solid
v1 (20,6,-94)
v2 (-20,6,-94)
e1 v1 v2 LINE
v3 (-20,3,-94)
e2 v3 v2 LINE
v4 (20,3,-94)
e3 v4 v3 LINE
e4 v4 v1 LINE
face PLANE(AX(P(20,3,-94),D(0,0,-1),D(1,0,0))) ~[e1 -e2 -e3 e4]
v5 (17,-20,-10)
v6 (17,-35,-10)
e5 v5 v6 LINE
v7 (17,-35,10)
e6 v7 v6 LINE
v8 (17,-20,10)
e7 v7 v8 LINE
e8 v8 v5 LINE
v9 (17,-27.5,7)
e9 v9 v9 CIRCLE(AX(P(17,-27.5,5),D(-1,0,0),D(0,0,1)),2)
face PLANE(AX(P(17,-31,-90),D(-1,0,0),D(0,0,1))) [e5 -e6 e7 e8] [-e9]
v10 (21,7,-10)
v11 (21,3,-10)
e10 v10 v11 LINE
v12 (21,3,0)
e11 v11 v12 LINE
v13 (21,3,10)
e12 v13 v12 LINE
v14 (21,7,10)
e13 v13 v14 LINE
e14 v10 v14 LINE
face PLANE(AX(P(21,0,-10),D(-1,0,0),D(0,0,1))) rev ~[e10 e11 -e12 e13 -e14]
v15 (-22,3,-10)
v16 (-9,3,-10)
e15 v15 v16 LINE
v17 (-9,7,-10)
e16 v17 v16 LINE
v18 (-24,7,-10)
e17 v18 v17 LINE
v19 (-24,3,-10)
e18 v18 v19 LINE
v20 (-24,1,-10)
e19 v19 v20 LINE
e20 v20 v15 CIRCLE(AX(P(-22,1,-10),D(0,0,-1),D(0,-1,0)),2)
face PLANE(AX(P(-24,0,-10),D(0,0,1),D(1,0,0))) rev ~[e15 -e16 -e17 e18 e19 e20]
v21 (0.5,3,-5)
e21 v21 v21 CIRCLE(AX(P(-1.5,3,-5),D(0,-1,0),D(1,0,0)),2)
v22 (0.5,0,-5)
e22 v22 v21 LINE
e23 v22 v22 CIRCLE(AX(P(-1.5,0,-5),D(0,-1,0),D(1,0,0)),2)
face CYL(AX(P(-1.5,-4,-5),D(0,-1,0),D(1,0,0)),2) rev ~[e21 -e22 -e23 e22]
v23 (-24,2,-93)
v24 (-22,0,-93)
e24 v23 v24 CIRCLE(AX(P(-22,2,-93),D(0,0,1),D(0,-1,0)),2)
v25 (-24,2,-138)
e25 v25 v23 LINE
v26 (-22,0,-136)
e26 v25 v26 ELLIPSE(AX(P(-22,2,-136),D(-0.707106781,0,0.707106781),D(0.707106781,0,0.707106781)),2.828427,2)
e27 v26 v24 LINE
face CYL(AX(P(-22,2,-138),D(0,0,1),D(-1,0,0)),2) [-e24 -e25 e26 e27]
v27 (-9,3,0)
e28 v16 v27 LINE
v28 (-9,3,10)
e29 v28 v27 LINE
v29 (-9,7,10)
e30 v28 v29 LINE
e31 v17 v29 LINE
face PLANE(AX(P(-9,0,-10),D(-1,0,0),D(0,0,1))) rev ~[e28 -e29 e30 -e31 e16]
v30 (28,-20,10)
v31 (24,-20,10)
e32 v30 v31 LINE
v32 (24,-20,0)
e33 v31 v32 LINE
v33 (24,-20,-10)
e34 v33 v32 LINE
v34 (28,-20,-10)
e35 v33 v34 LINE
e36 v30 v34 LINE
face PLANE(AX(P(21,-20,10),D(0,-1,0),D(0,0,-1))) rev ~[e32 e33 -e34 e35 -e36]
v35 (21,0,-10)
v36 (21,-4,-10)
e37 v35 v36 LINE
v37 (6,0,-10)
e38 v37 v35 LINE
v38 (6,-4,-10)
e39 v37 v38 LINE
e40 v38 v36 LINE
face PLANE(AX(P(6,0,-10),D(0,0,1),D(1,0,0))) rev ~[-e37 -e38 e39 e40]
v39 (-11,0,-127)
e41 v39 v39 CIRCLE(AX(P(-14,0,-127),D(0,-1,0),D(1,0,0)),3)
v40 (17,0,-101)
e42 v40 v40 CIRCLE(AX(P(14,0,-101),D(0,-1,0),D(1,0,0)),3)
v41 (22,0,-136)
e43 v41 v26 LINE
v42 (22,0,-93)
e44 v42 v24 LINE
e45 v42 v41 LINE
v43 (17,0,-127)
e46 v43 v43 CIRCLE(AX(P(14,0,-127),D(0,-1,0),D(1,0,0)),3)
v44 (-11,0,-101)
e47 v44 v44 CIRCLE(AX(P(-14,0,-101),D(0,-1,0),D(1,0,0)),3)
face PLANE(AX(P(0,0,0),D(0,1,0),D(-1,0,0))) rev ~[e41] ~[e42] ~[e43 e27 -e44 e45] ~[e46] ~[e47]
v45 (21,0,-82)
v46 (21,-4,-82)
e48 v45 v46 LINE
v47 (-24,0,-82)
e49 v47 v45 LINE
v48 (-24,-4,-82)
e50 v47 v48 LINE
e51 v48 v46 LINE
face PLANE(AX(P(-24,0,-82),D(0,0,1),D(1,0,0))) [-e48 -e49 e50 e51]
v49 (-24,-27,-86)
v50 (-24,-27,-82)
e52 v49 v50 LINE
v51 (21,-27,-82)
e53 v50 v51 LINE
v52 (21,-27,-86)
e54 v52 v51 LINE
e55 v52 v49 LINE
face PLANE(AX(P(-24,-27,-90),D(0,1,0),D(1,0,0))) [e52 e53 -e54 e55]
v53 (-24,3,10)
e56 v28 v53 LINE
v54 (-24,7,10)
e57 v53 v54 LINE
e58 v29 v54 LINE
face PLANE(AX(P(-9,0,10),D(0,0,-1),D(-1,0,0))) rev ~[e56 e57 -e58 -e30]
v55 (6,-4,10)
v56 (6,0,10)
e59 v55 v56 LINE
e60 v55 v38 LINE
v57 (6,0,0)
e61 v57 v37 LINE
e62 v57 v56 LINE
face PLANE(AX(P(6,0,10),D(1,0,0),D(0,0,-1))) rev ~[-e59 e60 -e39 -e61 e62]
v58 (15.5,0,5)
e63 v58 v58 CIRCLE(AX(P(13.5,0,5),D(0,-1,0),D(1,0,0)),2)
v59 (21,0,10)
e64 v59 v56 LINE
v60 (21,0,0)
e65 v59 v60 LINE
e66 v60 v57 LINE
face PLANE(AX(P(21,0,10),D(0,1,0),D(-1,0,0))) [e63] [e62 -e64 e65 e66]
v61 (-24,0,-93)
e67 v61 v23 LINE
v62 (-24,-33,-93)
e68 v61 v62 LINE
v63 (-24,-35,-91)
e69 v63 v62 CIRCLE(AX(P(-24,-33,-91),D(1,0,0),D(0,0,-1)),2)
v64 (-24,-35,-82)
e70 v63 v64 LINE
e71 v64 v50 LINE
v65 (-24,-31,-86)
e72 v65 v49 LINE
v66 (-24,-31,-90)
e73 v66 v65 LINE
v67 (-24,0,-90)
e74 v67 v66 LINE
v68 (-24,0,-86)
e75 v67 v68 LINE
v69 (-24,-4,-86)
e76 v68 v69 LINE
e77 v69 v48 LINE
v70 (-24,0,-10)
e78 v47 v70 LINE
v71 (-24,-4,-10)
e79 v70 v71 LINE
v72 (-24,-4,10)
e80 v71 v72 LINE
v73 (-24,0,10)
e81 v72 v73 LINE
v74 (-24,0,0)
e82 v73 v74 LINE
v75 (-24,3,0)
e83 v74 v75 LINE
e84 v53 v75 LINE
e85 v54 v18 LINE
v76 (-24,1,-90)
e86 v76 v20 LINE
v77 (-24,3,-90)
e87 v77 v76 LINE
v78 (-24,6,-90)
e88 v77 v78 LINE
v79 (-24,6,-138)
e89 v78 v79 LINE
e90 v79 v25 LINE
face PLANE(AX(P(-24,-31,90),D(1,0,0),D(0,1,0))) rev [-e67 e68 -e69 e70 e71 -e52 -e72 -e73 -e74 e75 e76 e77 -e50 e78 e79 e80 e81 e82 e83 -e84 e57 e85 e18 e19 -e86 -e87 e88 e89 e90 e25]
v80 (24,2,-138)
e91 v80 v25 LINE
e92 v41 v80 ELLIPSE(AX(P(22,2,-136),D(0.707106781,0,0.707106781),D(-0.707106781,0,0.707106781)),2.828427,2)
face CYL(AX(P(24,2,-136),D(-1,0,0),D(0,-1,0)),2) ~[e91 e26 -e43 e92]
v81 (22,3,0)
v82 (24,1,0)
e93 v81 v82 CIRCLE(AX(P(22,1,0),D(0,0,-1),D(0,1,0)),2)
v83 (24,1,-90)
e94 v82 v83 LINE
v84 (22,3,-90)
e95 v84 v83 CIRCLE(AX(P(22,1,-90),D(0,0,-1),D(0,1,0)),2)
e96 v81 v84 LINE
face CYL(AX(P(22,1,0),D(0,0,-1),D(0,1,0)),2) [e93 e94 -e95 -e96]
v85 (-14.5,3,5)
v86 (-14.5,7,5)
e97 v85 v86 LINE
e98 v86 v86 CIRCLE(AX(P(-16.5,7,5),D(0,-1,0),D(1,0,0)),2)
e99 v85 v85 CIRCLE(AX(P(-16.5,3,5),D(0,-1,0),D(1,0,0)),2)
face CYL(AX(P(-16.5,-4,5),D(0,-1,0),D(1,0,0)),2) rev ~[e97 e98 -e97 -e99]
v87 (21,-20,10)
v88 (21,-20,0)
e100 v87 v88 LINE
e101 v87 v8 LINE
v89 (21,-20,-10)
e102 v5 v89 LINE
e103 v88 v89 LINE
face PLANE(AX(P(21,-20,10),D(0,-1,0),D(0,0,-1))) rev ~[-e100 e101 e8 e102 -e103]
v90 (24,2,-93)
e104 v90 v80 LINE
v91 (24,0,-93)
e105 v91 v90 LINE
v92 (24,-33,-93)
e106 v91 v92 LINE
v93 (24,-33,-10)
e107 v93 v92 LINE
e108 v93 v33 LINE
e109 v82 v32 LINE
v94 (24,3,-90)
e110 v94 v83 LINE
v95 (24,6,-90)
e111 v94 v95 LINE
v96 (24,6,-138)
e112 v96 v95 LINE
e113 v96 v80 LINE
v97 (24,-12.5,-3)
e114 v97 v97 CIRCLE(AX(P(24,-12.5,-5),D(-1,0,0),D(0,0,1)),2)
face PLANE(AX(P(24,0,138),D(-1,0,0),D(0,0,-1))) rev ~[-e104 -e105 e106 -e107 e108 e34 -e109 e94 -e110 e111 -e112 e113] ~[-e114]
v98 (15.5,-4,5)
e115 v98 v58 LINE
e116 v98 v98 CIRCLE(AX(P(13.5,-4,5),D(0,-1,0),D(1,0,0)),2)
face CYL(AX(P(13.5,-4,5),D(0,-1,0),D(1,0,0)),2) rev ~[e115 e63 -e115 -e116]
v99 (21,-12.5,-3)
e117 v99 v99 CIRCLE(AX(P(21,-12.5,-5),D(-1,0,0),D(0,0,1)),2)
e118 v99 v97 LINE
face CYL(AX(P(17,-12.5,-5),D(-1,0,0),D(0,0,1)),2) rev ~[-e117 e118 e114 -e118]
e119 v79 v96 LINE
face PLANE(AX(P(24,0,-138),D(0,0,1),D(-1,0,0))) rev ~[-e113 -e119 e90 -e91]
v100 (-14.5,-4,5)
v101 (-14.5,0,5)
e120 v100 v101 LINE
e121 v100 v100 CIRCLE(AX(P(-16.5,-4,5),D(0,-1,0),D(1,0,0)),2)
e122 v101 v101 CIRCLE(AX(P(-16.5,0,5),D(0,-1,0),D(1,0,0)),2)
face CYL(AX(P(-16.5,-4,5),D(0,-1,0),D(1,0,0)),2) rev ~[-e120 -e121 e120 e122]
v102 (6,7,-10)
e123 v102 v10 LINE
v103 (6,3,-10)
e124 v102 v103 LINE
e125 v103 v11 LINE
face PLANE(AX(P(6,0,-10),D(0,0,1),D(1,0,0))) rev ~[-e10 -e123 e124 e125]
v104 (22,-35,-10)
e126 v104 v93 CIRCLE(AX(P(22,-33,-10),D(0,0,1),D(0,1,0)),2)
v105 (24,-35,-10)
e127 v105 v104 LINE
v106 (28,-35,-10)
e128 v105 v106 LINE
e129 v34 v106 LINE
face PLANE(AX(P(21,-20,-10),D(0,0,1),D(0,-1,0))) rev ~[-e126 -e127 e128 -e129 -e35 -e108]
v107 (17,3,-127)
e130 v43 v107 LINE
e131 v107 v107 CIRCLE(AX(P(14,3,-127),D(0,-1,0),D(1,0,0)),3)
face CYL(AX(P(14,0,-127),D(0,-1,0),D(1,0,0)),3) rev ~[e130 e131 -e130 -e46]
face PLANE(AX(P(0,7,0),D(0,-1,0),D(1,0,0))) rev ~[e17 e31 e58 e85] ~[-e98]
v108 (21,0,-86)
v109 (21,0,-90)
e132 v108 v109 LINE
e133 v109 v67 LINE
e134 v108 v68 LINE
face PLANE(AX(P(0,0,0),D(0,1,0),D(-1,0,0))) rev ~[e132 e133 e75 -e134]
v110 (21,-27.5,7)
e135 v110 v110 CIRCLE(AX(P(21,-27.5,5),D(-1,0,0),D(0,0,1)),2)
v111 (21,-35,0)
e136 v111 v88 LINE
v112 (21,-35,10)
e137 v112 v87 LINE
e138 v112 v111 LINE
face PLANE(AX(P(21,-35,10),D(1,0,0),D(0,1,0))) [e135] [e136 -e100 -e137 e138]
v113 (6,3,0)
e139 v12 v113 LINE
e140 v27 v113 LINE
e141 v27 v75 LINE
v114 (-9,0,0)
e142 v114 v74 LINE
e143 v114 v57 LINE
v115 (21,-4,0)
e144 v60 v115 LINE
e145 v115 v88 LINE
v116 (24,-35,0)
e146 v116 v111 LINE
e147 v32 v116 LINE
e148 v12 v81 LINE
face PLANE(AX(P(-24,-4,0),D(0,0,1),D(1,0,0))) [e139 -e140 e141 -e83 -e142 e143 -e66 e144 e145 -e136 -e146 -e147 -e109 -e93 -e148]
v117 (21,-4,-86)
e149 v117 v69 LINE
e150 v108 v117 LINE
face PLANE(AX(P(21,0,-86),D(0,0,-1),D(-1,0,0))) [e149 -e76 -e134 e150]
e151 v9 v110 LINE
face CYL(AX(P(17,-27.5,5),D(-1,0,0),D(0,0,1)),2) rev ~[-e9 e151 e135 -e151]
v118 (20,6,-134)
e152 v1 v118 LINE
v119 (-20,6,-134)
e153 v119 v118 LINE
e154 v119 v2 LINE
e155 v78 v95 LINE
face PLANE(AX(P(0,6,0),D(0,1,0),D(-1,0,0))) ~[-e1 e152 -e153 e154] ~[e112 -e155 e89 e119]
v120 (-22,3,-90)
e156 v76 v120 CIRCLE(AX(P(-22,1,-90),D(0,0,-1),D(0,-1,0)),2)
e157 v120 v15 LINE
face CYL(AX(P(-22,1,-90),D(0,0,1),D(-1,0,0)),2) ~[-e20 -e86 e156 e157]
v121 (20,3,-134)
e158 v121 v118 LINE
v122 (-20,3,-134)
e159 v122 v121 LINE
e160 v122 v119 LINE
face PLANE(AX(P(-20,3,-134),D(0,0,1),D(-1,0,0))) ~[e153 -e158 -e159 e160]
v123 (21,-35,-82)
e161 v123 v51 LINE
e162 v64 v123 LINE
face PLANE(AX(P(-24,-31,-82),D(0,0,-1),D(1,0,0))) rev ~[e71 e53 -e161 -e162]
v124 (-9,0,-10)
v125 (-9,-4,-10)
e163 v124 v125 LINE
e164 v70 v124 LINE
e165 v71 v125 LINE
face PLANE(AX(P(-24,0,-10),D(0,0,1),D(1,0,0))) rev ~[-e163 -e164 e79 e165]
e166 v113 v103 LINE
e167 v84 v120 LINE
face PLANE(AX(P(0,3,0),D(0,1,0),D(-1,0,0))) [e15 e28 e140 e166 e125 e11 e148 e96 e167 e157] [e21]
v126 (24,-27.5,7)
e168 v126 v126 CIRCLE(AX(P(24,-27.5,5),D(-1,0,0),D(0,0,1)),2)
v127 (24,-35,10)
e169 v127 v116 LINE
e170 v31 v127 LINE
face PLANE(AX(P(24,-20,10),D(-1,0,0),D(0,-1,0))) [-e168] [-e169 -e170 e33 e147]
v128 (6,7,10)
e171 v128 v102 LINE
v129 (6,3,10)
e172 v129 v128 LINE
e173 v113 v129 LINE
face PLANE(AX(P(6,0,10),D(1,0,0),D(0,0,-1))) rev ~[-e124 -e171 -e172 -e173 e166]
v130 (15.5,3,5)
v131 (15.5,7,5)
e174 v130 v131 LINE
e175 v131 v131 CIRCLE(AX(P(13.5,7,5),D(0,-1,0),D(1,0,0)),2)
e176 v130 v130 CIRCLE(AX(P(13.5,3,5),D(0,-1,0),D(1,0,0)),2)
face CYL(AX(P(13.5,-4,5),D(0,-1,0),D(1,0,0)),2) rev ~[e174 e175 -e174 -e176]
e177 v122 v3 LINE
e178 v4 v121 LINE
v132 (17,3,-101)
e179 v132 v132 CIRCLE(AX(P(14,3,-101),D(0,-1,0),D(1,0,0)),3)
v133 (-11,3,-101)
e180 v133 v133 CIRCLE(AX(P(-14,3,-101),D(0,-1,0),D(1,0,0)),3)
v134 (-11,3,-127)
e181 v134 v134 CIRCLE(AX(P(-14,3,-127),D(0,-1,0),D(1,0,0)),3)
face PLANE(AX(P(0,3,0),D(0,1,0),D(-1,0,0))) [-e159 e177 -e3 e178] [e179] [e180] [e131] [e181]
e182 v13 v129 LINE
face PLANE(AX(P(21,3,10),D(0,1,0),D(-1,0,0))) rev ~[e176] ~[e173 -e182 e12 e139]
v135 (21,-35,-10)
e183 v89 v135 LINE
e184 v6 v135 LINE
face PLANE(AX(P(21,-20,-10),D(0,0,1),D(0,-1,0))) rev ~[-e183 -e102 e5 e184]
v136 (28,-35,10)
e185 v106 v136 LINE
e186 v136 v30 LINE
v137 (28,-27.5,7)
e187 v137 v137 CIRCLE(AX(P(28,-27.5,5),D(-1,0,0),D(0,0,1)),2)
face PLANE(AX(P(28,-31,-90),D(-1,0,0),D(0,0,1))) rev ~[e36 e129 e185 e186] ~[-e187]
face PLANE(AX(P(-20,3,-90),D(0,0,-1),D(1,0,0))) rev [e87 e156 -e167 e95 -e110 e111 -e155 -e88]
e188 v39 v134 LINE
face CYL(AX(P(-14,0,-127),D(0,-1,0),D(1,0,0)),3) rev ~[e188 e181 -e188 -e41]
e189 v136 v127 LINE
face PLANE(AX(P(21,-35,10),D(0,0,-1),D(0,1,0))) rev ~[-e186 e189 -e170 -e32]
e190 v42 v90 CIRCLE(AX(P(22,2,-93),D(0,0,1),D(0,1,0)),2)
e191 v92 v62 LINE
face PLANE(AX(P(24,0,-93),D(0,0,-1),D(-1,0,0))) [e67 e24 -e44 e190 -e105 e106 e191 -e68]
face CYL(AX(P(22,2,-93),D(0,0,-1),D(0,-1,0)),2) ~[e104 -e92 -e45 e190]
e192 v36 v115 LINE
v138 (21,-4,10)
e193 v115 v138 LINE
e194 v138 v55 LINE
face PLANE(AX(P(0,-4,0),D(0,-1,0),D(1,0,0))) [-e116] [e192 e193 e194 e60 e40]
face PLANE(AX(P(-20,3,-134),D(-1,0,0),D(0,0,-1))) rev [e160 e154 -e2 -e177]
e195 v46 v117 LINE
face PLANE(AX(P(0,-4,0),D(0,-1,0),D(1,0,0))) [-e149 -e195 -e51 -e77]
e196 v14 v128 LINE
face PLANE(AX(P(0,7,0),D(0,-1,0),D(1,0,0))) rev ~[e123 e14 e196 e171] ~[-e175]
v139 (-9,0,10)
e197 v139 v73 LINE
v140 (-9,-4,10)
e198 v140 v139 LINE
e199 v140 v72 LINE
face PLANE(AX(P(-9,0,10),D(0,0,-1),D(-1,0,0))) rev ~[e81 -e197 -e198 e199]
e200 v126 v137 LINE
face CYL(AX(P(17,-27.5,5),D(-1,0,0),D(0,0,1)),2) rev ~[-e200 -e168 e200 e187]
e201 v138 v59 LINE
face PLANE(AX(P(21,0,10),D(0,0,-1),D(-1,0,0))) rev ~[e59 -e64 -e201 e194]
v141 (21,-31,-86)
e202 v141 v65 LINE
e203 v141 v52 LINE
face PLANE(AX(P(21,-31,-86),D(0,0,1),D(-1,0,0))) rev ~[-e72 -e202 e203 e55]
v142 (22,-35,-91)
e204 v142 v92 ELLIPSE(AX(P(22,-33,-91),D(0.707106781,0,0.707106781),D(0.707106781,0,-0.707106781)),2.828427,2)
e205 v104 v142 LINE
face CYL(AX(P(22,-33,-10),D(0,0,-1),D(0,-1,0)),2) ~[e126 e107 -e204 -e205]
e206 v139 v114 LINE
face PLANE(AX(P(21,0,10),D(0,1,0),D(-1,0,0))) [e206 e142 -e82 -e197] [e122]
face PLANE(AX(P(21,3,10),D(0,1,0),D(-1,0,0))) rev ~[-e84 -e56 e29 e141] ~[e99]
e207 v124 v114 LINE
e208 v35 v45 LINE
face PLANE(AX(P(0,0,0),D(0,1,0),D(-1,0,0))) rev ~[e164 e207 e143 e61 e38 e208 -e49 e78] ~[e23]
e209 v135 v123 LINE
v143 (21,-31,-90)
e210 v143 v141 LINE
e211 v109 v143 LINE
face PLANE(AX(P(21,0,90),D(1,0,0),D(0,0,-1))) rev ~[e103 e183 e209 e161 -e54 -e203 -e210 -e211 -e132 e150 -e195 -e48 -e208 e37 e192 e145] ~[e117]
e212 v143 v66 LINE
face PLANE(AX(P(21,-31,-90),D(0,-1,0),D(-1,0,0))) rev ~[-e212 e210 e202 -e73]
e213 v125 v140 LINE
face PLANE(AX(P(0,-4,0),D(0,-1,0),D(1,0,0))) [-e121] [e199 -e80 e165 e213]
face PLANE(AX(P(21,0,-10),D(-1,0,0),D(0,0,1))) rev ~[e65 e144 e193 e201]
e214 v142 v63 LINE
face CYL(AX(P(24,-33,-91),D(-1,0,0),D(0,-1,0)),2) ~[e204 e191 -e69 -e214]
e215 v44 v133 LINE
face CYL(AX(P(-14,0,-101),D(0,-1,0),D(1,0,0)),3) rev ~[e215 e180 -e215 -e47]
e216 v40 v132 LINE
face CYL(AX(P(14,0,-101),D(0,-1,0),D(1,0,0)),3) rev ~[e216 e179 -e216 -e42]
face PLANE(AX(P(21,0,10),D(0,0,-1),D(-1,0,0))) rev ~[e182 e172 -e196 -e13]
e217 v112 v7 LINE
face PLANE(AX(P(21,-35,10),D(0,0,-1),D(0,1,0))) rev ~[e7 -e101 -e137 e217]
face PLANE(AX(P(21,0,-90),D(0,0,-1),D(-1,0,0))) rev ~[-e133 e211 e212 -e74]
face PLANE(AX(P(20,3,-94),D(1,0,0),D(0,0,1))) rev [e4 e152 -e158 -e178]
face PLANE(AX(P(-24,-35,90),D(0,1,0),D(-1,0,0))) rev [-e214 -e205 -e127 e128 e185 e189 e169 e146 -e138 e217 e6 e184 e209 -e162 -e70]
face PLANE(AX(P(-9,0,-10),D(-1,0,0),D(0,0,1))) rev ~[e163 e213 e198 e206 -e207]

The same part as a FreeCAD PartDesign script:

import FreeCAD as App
import Part
import Sketcher
Q = App.Units.Quantity


def edges_at(feature, points):
    """Names of the edges that pass closest to the given points."""
    edges = feature.Shape.Edges
    near = lambda p: min(range(len(edges)), key=lambda i: edges[i].distToShape(Part.Vertex(*p))[0])
    return sorted({f"Edge{near(p) + 1}" for p in points})

doc = App.newDocument("Part")
params = doc.addObject("Spreadsheet::Sheet", "Params")
for row, (alias, value) in enumerate([
    ("sketch1_width", "48 mm"),
    ("sketch1_height", "276 mm"),
    ("pad1_length", "3 mm"),
    ("sketch2_width", "48 mm"),
    ("pad2_length", "3 mm"),
    ("sketch3_height", "3 mm"),
    ("sketch3_width", "48 mm"),
    ("sketch3_height2", "186 mm"),
    ("pad3_length", "35 mm"),
    ("sketch4_height", "4 mm"),
    ("sketch4_width", "45 mm"),
    ("pad4_length", "8 mm"),
    ("sketch5_height", "4 mm"),
    ("sketch5_width", "45 mm"),
    ("pad5_length", "4 mm"),
    ("sketch6_height", "4 mm"),
    ("sketch6_width", "45 mm"),
    ("pad6_length", "4 mm"),
    ("sketch7_diameter", "6 mm"),
    ("pocket1_length", "4 mm"),
    ("sketch8_width", "48 mm"),
    ("sketch8_height", "138 mm"),
    ("pocket2_length", "100 mm"),
    ("sketch9_width", "15 mm"),
    ("sketch9_height", "20 mm"),
    ("pad7_length", "4 mm"),
    ("pad7_length2", "7 mm"),
    ("sketch10_width", "15 mm"),
    ("sketch10_height", "20 mm"),
    ("pad8_length", "4 mm"),
    ("pad8_length2", "7 mm"),
    ("sketch11_diameter", "4 mm"),
    ("pocket3_length", "20 mm"),
    ("sketch12_diameter", "4 mm"),
    ("pocket4_length", "20 mm"),
    ("sketch13_width", "3 mm"),
    ("sketch13_width2", "45 mm"),
    ("sketch13_height", "15 mm"),
    ("pocket5_length", "10 mm"),
    ("fillet_radius", "2 mm"),
], start=1):
    params.set(f"A{row}", alias)
    params.set(f"B{row}", "=" + value)
    params.setAlias(f"B{row}", alias)

body = doc.addObject("PartDesign::Body", "Body")

# Sketch on XZ plane
sketch1 = body.newObject("Sketcher::SketchObject", "Sketch")
sketch1.AttachmentSupport = (doc.getObject("XZ_Plane"), [""])
sketch1.MapMode = "FlatFace"
sketch1.addGeometry([
    Part.LineSegment(App.Vector(-24, -138, 0), App.Vector(-24, 138, 0)),
    Part.LineSegment(App.Vector(-24, 138, 0), App.Vector(24, 138, 0)),
    Part.LineSegment(App.Vector(24, 138, 0), App.Vector(24, -138, 0)),
    Part.LineSegment(App.Vector(24, -138, 0), App.Vector(-24, -138, 0)),
], False)
sketch1.addConstraint([
    Sketcher.Constraint("Coincident", 0, 2, 1, 1),
    Sketcher.Constraint("Coincident", 1, 2, 2, 1),
    Sketcher.Constraint("Coincident", 2, 2, 3, 1),
    Sketcher.Constraint("Coincident", 3, 2, 0, 1),
    Sketcher.Constraint("Vertical", 0),
    Sketcher.Constraint("Horizontal", 1),
    Sketcher.Constraint("Vertical", 2),
    Sketcher.Constraint("Horizontal", 3),
    Sketcher.Constraint("Symmetric", 0, 2, 2, 2, -1, 1),
    Sketcher.Constraint("DistanceX", 1, 1, 1, 2, Q("48 mm")),
    Sketcher.Constraint("DistanceY", 0, 1, 0, 2, Q("276 mm")),
])
sketch1.setExpression("Constraints[9]", "Params.sketch1_width")
sketch1.setExpression("Constraints[10]", "Params.sketch1_height")
pad1 = body.newObject("PartDesign::Pad", "Pad")
pad1.Profile = sketch1
pad1.setExpression("Length", "Params.pad1_length")
pad1.Reversed = True

# Sketch on XZ plane
sketch2 = body.newObject("Sketcher::SketchObject", "Sketch001")
sketch2.AttachmentSupport = (doc.getObject("XZ_Plane"), [""])
sketch2.MapMode = "FlatFace"
sketch2.AttachmentOffset = App.Placement(App.Vector(0, 0, -3), App.Rotation())
sketch2.addGeometry([
    Part.LineSegment(App.Vector(-24, 90, 0), App.Vector(-24, 138, 0)),  # 0
    Part.LineSegment(App.Vector(-24, 138, 0), App.Vector(24, 138, 0)),  # 1
    Part.LineSegment(App.Vector(24, 138, 0), App.Vector(24, 90, 0)),  # 2
    Part.LineSegment(App.Vector(24, 90, 0), App.Vector(-24, 90, 0)),  # 3
    Part.LineSegment(App.Vector(-20, 134, 0), App.Vector(-20, 94, 0)),  # 4
    Part.LineSegment(App.Vector(-20, 94, 0), App.Vector(20, 94, 0)),  # 5
    Part.LineSegment(App.Vector(20, 94, 0), App.Vector(20, 134, 0)),  # 6
    Part.LineSegment(App.Vector(20, 134, 0), App.Vector(-20, 134, 0)),  # 7
], False)
sketch2.addConstraint([
    Sketcher.Constraint("Coincident", 0, 2, 1, 1),
    Sketcher.Constraint("Coincident", 1, 2, 2, 1),
    Sketcher.Constraint("Coincident", 2, 2, 3, 1),
    Sketcher.Constraint("Coincident", 3, 2, 0, 1),
    Sketcher.Constraint("Coincident", 4, 2, 5, 1),
    Sketcher.Constraint("Coincident", 5, 2, 6, 1),
    Sketcher.Constraint("Coincident", 6, 2, 7, 1),
    Sketcher.Constraint("Coincident", 7, 2, 4, 1),
    Sketcher.Constraint("Vertical", 0),
    Sketcher.Constraint("Horizontal", 1),
    Sketcher.Constraint("Vertical", 2),
    Sketcher.Constraint("Horizontal", 3),
    Sketcher.Constraint("Vertical", 4),
    Sketcher.Constraint("Horizontal", 5),
    Sketcher.Constraint("Vertical", 6),
    Sketcher.Constraint("Horizontal", 7),
    Sketcher.Constraint("Equal", 3, 0),
    Sketcher.Constraint("Equal", 7, 4),
    Sketcher.Constraint("DistanceX", 1, 1, 1, 2, Q("48 mm")),
    Sketcher.Constraint("DistanceX", 3, 2, 4, 2, Q("4 mm")),
    Sketcher.Constraint("DistanceY", 3, 2, 4, 2, Q("4 mm")),
    Sketcher.Constraint("DistanceX", 5, 2, 2, 2, Q("4 mm")),
    Sketcher.Constraint("DistanceX", 0, 2, -1, 1, Q("24 mm")),
    Sketcher.Constraint("DistanceY", -1, 1, 0, 2, Q("138 mm")),
])
sketch2.setExpression("Constraints[18]", "Params.sketch2_width")
pad2 = body.newObject("PartDesign::Pad", "Pad001")
pad2.Profile = sketch2
pad2.setExpression("Length", "Params.pad2_length")
pad2.Reversed = True
doc.recompute()

mirrored = body.newObject("PartDesign::Mirrored", "Mirrored")
mirrored.Originals = [pad2]
mirrored.MirrorPlane = (doc.getObject("XY_Plane"), [""])
body.Tip = mirrored

# Sketch on XZ plane
sketch3 = body.newObject("Sketcher::SketchObject", "Sketch002")
sketch3.AttachmentSupport = (doc.getObject("XZ_Plane"), [""])
sketch3.MapMode = "FlatFace"
sketch3.addGeometry([
    Part.LineSegment(App.Vector(24, -93, 0), App.Vector(24, 93, 0)),  # 0
    Part.LineSegment(App.Vector(24, 93, 0), App.Vector(-24, 93, 0)),  # 1
    Part.LineSegment(App.Vector(-24, 93, 0), App.Vector(-24, 90, 0)),  # 2
    Part.LineSegment(App.Vector(-24, 90, 0), App.Vector(21, 90, 0)),  # 3
    Part.LineSegment(App.Vector(21, 90, 0), App.Vector(21, -90, 0)),  # 4
    Part.LineSegment(App.Vector(21, -90, 0), App.Vector(-24, -90, 0)),  # 5
    Part.LineSegment(App.Vector(-24, -90, 0), App.Vector(-24, -93, 0)),  # 6
    Part.LineSegment(App.Vector(-24, -93, 0), App.Vector(24, -93, 0)),  # 7
], False)
sketch3.addConstraint([
    Sketcher.Constraint("Coincident", 0, 2, 1, 1),
    Sketcher.Constraint("Coincident", 1, 2, 2, 1),
    Sketcher.Constraint("Coincident", 2, 2, 3, 1),
    Sketcher.Constraint("Coincident", 3, 2, 4, 1),
    Sketcher.Constraint("Coincident", 4, 2, 5, 1),
    Sketcher.Constraint("Coincident", 5, 2, 6, 1),
    Sketcher.Constraint("Coincident", 6, 2, 7, 1),
    Sketcher.Constraint("Coincident", 7, 2, 0, 1),
    Sketcher.Constraint("Vertical", 0),
    Sketcher.Constraint("Horizontal", 1),
    Sketcher.Constraint("Vertical", 2),
    Sketcher.Constraint("Horizontal", 3),
    Sketcher.Constraint("Vertical", 4),
    Sketcher.Constraint("Horizontal", 5),
    Sketcher.Constraint("Vertical", 6),
    Sketcher.Constraint("Horizontal", 7),
    Sketcher.Constraint("Symmetric", 0, 2, 6, 2, -1, 1),
    Sketcher.Constraint("Symmetric", 2, 2, 5, 2, -1),
    Sketcher.Constraint("DistanceY", 2, 2, 2, 1, Q("3 mm")),
    Sketcher.Constraint("DistanceX", 3, 2, 0, 2, Q("3 mm")),
    Sketcher.Constraint("DistanceX", 1, 2, 1, 1, Q("48 mm")),
    Sketcher.Constraint("DistanceY", 0, 1, 0, 2, Q("186 mm")),
])
sketch3.setExpression("Constraints[18]", "Params.sketch3_height")
sketch3.setExpression("Constraints[20]", "Params.sketch3_width")
sketch3.setExpression("Constraints[21]", "Params.sketch3_height2")
pad3 = body.newObject("PartDesign::Pad", "Pad002")
pad3.Profile = sketch3
pad3.setExpression("Length", "Params.pad3_length")

# Sketch on XY plane
sketch4 = body.newObject("Sketcher::SketchObject", "Sketch003")
sketch4.AttachmentSupport = (doc.getObject("XY_Plane"), [""])
sketch4.MapMode = "FlatFace"
sketch4.AttachmentOffset = App.Placement(App.Vector(0, 0, -90), App.Rotation())
sketch4.addGeometry([
    Part.LineSegment(App.Vector(-24, -31, 0), App.Vector(-24, -35, 0)),
    Part.LineSegment(App.Vector(-24, -35, 0), App.Vector(21, -35, 0)),
    Part.LineSegment(App.Vector(21, -35, 0), App.Vector(21, -31, 0)),
    Part.LineSegment(App.Vector(21, -31, 0), App.Vector(-24, -31, 0)),
], False)
sketch4.addConstraint([
    Sketcher.Constraint("Coincident", 0, 2, 1, 1),
    Sketcher.Constraint("Coincident", 1, 2, 2, 1),
    Sketcher.Constraint("Coincident", 2, 2, 3, 1),
    Sketcher.Constraint("Coincident", 3, 2, 0, 1),
    Sketcher.Constraint("Vertical", 0),
    Sketcher.Constraint("Horizontal", 1),
    Sketcher.Constraint("Vertical", 2),
    Sketcher.Constraint("Horizontal", 3),
    Sketcher.Constraint("DistanceY", 0, 2, 0, 1, Q("4 mm")),
    Sketcher.Constraint("DistanceX", 1, 1, 1, 2, Q("45 mm")),
    Sketcher.Constraint("DistanceX", 0, 2, -1, 1, Q("24 mm")),
    Sketcher.Constraint("DistanceY", 0, 2, -1, 1, Q("35 mm")),
])
sketch4.setExpression("Constraints[8]", "Params.sketch4_height")
sketch4.setExpression("Constraints[9]", "Params.sketch4_width")
pad4 = body.newObject("PartDesign::Pad", "Pad003")
pad4.Profile = sketch4
pad4.setExpression("Length", "Params.pad4_length")

# Sketch on XZ plane
sketch5 = body.newObject("Sketcher::SketchObject", "Sketch004")
sketch5.AttachmentSupport = (doc.getObject("XZ_Plane"), [""])
sketch5.MapMode = "FlatFace"
sketch5.AttachmentOffset = App.Placement(App.Vector(0, 0, 31), App.Rotation())
sketch5.addGeometry([
    Part.LineSegment(App.Vector(-24, -86, 0), App.Vector(-24, -82, 0)),
    Part.LineSegment(App.Vector(-24, -82, 0), App.Vector(21, -82, 0)),
    Part.LineSegment(App.Vector(21, -82, 0), App.Vector(21, -86, 0)),
    Part.LineSegment(App.Vector(21, -86, 0), App.Vector(-24, -86, 0)),
], False)
sketch5.addConstraint([
    Sketcher.Constraint("Coincident", 0, 2, 1, 1),
    Sketcher.Constraint("Coincident", 1, 2, 2, 1),
    Sketcher.Constraint("Coincident", 2, 2, 3, 1),
    Sketcher.Constraint("Coincident", 3, 2, 0, 1),
    Sketcher.Constraint("Vertical", 0),
    Sketcher.Constraint("Horizontal", 1),
    Sketcher.Constraint("Vertical", 2),
    Sketcher.Constraint("Horizontal", 3),
    Sketcher.Constraint("DistanceY", 0, 1, 0, 2, Q("4 mm")),
    Sketcher.Constraint("DistanceX", 1, 1, 1, 2, Q("45 mm")),
    Sketcher.Constraint("DistanceX", 0, 2, -1, 1, Q("24 mm")),
    Sketcher.Constraint("DistanceY", 0, 2, -1, 1, Q("82 mm")),
])
sketch5.setExpression("Constraints[8]", "Params.sketch5_height")
sketch5.setExpression("Constraints[9]", "Params.sketch5_width")
pad5 = body.newObject("PartDesign::Pad", "Pad004")
pad5.Profile = sketch5
pad5.setExpression("Length", "Params.pad5_length")
pad5.Reversed = True

# Sketch on XZ plane
sketch6 = body.newObject("Sketcher::SketchObject", "Sketch005")
sketch6.AttachmentSupport = (doc.getObject("XZ_Plane"), [""])
sketch6.MapMode = "FlatFace"
sketch6.addGeometry([
    Part.LineSegment(App.Vector(-24, -86, 0), App.Vector(21, -86, 0)),
    Part.LineSegment(App.Vector(21, -86, 0), App.Vector(21, -82, 0)),
    Part.LineSegment(App.Vector(21, -82, 0), App.Vector(-24, -82, 0)),
    Part.LineSegment(App.Vector(-24, -82, 0), App.Vector(-24, -86, 0)),
], False)
sketch6.addConstraint([
    Sketcher.Constraint("Coincident", 0, 2, 1, 1),
    Sketcher.Constraint("Coincident", 1, 2, 2, 1),
    Sketcher.Constraint("Coincident", 2, 2, 3, 1),
    Sketcher.Constraint("Coincident", 3, 2, 0, 1),
    Sketcher.Constraint("Horizontal", 0),
    Sketcher.Constraint("Vertical", 1),
    Sketcher.Constraint("Horizontal", 2),
    Sketcher.Constraint("Vertical", 3),
    Sketcher.Constraint("DistanceY", 1, 1, 1, 2, Q("4 mm")),
    Sketcher.Constraint("DistanceX", 0, 1, 0, 2, Q("45 mm")),
    Sketcher.Constraint("DistanceX", -1, 1, 0, 2, Q("21 mm")),
    Sketcher.Constraint("DistanceY", 0, 2, -1, 1, Q("86 mm")),
])
sketch6.setExpression("Constraints[8]", "Params.sketch6_height")
sketch6.setExpression("Constraints[9]", "Params.sketch6_width")
pad6 = body.newObject("PartDesign::Pad", "Pad005")
pad6.Profile = sketch6
pad6.setExpression("Length", "Params.pad6_length")
doc.recompute()

mirrored2 = body.newObject("PartDesign::Mirrored", "Mirrored001")
mirrored2.Originals = [pad6, pad5, pad4]
mirrored2.MirrorPlane = (doc.getObject("XY_Plane"), [""])
body.Tip = mirrored2

# Sketch on XZ plane
sketch7 = body.newObject("Sketcher::SketchObject", "Sketch006")
sketch7.AttachmentSupport = (doc.getObject("XZ_Plane"), [""])
sketch7.MapMode = "FlatFace"
sketch7.addGeometry([
    Part.Circle(App.Vector(-14, -127, 0), App.Vector(0, 0, 1), 3),
    Part.Circle(App.Vector(14, -127, 0), App.Vector(0, 0, 1), 3),
    Part.Circle(App.Vector(14, -101, 0), App.Vector(0, 0, 1), 3),
    Part.Circle(App.Vector(-14, -101, 0), App.Vector(0, 0, 1), 3),
], False)
sketch7.addConstraint([
    Sketcher.Constraint("Equal", 0, 1),
    Sketcher.Constraint("Equal", 1, 2),
    Sketcher.Constraint("Equal", 2, 3),
    Sketcher.Constraint("Symmetric", 0, 3, 1, 3, -2),
    Sketcher.Constraint("Symmetric", 2, 3, 3, 3, -2),
    Sketcher.Constraint("Vertical", 1, 3, 2, 3),
    Sketcher.Constraint("Diameter", 0, Q("6 mm")),
    Sketcher.Constraint("DistanceX", 0, 3, 1, 3, Q("28 mm")),
    Sketcher.Constraint("DistanceY", 1, 3, 2, 3, Q("26 mm")),
    Sketcher.Constraint("DistanceY", 0, 3, -1, 1, Q("127 mm")),
])
sketch7.setExpression("Constraints[6]", "Params.sketch7_diameter")
pocket1 = body.newObject("PartDesign::Pocket", "Pocket")
pocket1.Profile = sketch7
pocket1.setExpression("Length", "Params.pocket1_length")
doc.recompute()

mirrored3 = body.newObject("PartDesign::Mirrored", "Mirrored002")
mirrored3.Originals = [pocket1]
mirrored3.MirrorPlane = (doc.getObject("XY_Plane"), [""])
body.Tip = mirrored3

# Sketch on XZ plane
sketch8 = body.newObject("Sketcher::SketchObject", "Sketch007")
sketch8.AttachmentSupport = (doc.getObject("XZ_Plane"), [""])
sketch8.MapMode = "FlatFace"
sketch8.addGeometry([
    Part.LineSegment(App.Vector(-24, 138, 0), App.Vector(-24, 0, 0)),
    Part.LineSegment(App.Vector(-24, 0, 0), App.Vector(24, 0, 0)),
    Part.LineSegment(App.Vector(24, 0, 0), App.Vector(24, 138, 0)),
    Part.LineSegment(App.Vector(24, 138, 0), App.Vector(-24, 138, 0)),
], False)
sketch8.addConstraint([
    Sketcher.Constraint("Coincident", 0, 2, 1, 1),
    Sketcher.Constraint("Coincident", 1, 2, 2, 1),
    Sketcher.Constraint("Coincident", 2, 2, 3, 1),
    Sketcher.Constraint("Coincident", 3, 2, 0, 1),
    Sketcher.Constraint("Vertical", 0),
    Sketcher.Constraint("Horizontal", 1),
    Sketcher.Constraint("Vertical", 2),
    Sketcher.Constraint("Horizontal", 3),
    Sketcher.Constraint("Symmetric", 0, 2, 1, 2, -1, 1),
    Sketcher.Constraint("DistanceX", 1, 1, 1, 2, Q("48 mm")),
    Sketcher.Constraint("DistanceY", 0, 2, 0, 1, Q("138 mm")),
])
sketch8.setExpression("Constraints[9]", "Params.sketch8_width")
sketch8.setExpression("Constraints[10]", "Params.sketch8_height")
pocket2 = body.newObject("PartDesign::Pocket", "Pocket001")
pocket2.Profile = sketch8
pocket2.setExpression("Length", "Params.pocket2_length")
pocket2.Midplane = True

# Sketch on XZ plane
sketch9 = body.newObject("Sketcher::SketchObject", "Sketch008")
sketch9.AttachmentSupport = (doc.getObject("XZ_Plane"), [""])
sketch9.MapMode = "FlatFace"
sketch9.addGeometry([
    Part.LineSegment(App.Vector(-24, 10, 0), App.Vector(-24, -10, 0)),  # 0
    Part.LineSegment(App.Vector(-24, -10, 0), App.Vector(-9, -10, 0)),  # 1
    Part.LineSegment(App.Vector(-9, -10, 0), App.Vector(-9, 10, 0)),  # 2
    Part.LineSegment(App.Vector(-9, 10, 0), App.Vector(-24, 10, 0)),  # 3
    Part.LineSegment(App.Vector(6, 10, 0), App.Vector(6, -10, 0)),  # 4
    Part.LineSegment(App.Vector(6, -10, 0), App.Vector(21, -10, 0)),  # 5
    Part.LineSegment(App.Vector(21, -10, 0), App.Vector(21, 10, 0)),  # 6
    Part.LineSegment(App.Vector(21, 10, 0), App.Vector(6, 10, 0)),  # 7
], False)
sketch9.addConstraint([
    Sketcher.Constraint("Coincident", 0, 2, 1, 1),
    Sketcher.Constraint("Coincident", 1, 2, 2, 1),
    Sketcher.Constraint("Coincident", 2, 2, 3, 1),
    Sketcher.Constraint("Coincident", 3, 2, 0, 1),
    Sketcher.Constraint("Coincident", 4, 2, 5, 1),
    Sketcher.Constraint("Coincident", 5, 2, 6, 1),
    Sketcher.Constraint("Coincident", 6, 2, 7, 1),
    Sketcher.Constraint("Coincident", 7, 2, 4, 1),
    Sketcher.Constraint("Vertical", 0),
    Sketcher.Constraint("Horizontal", 1),
    Sketcher.Constraint("Vertical", 2),
    Sketcher.Constraint("Horizontal", 3),
    Sketcher.Constraint("Vertical", 4),
    Sketcher.Constraint("Horizontal", 5),
    Sketcher.Constraint("Vertical", 6),
    Sketcher.Constraint("Horizontal", 7),
    Sketcher.Constraint("Horizontal", 1, 2, 4, 2),
    Sketcher.Constraint("Horizontal", 3, 2, 6, 2),
    Sketcher.Constraint("Equal", 3, 5),
    Sketcher.Constraint("DistanceX", 1, 1, 1, 2, Q("15 mm")),
    Sketcher.Constraint("DistanceY", 0, 2, 0, 1, Q("20 mm")),
    Sketcher.Constraint("DistanceX", 1, 2, 4, 2, Q("15 mm")),
    Sketcher.Constraint("DistanceX", 0, 2, -1, 1, Q("24 mm")),
    Sketcher.Constraint("DistanceY", 0, 2, -1, 1, Q("10 mm")),
])
sketch9.setExpression("Constraints[19]", "Params.sketch9_width")
sketch9.setExpression("Constraints[20]", "Params.sketch9_height")
pad7 = body.newObject("PartDesign::Pad", "Pad006")
pad7.Profile = sketch9
pad7.Type = "TwoLengths"
pad7.setExpression("Length", "Params.pad7_length")
pad7.setExpression("Length2", "Params.pad7_length2")

# Sketch on YZ plane
sketch10 = body.newObject("Sketcher::SketchObject", "Sketch009")
sketch10.AttachmentSupport = (doc.getObject("YZ_Plane"), [""])
sketch10.MapMode = "FlatFace"
sketch10.AttachmentOffset = App.Placement(App.Vector(0, 0, 21), App.Rotation())
sketch10.addGeometry([
    Part.LineSegment(App.Vector(-35, -10, 0), App.Vector(-35, 10, 0)),
    Part.LineSegment(App.Vector(-35, 10, 0), App.Vector(-20, 10, 0)),
    Part.LineSegment(App.Vector(-20, 10, 0), App.Vector(-20, -10, 0)),
    Part.LineSegment(App.Vector(-20, -10, 0), App.Vector(-35, -10, 0)),
], False)
sketch10.addConstraint([
    Sketcher.Constraint("Coincident", 0, 2, 1, 1),
    Sketcher.Constraint("Coincident", 1, 2, 2, 1),
    Sketcher.Constraint("Coincident", 2, 2, 3, 1),
    Sketcher.Constraint("Coincident", 3, 2, 0, 1),
    Sketcher.Constraint("Vertical", 0),
    Sketcher.Constraint("Horizontal", 1),
    Sketcher.Constraint("Vertical", 2),
    Sketcher.Constraint("Horizontal", 3),
    Sketcher.Constraint("DistanceX", 1, 1, 1, 2, Q("15 mm")),
    Sketcher.Constraint("DistanceY", 0, 1, 0, 2, Q("20 mm")),
    Sketcher.Constraint("DistanceX", 1, 2, -1, 1, Q("20 mm")),
    Sketcher.Constraint("DistanceY", -1, 1, 0, 2, Q("10 mm")),
])
sketch10.setExpression("Constraints[8]", "Params.sketch10_width")
sketch10.setExpression("Constraints[9]", "Params.sketch10_height")
pad8 = body.newObject("PartDesign::Pad", "Pad007")
pad8.Profile = sketch10
pad8.Type = "TwoLengths"
pad8.setExpression("Length", "Params.pad8_length")
pad8.setExpression("Length2", "Params.pad8_length2")
pad8.Reversed = True

# Sketch on XZ plane
sketch11 = body.newObject("Sketcher::SketchObject", "Sketch010")
sketch11.AttachmentSupport = (doc.getObject("XZ_Plane"), [""])
sketch11.MapMode = "FlatFace"
sketch11.AttachmentOffset = App.Placement(App.Vector(0, 0, 4), App.Rotation())
sketch11.addGeometry([
    Part.Circle(App.Vector(-16.5, 5, 0), App.Vector(0, 0, 1), 2),
    Part.Circle(App.Vector(13.5, 5, 0), App.Vector(0, 0, 1), 2),
    Part.Circle(App.Vector(-1.5, -5, 0), App.Vector(0, 0, 1), 2),
], False)
sketch11.addConstraint([
    Sketcher.Constraint("Equal", 0, 1),
    Sketcher.Constraint("Equal", 1, 2),
    Sketcher.Constraint("Horizontal", 0, 3, 1, 3),
    Sketcher.Constraint("Diameter", 0, Q("4 mm")),
    Sketcher.Constraint("DistanceY", -1, 1, 0, 3, Q("5 mm")),
    Sketcher.Constraint("DistanceY", 2, 3, -1, 1, Q("5 mm")),
    Sketcher.Constraint("DistanceX", 0, 3, 1, 3, Q("30 mm")),
    Sketcher.Constraint("DistanceX", 0, 3, 2, 3, Q("15 mm")),
    Sketcher.Constraint("DistanceX", 0, 3, -1, 1, Q("16.5 mm")),
])
sketch11.setExpression("Constraints[3]", "Params.sketch11_diameter")
pocket3 = body.newObject("PartDesign::Pocket", "Pocket002")
pocket3.Profile = sketch11
pocket3.setExpression("Length", "Params.pocket3_length")

# Sketch on YZ plane
sketch12 = body.newObject("Sketcher::SketchObject", "Sketch011")
sketch12.AttachmentSupport = (doc.getObject("YZ_Plane"), [""])
sketch12.MapMode = "FlatFace"
sketch12.AttachmentOffset = App.Placement(App.Vector(0, 0, 17), App.Rotation())
sketch12.addGeometry([
    Part.Circle(App.Vector(-27.5, 5, 0), App.Vector(0, 0, 1), 2),
    Part.Circle(App.Vector(-12.5, -5, 0), App.Vector(0, 0, 1), 2),
], False)
sketch12.addConstraint([
    Sketcher.Constraint("Equal", 0, 1),
    Sketcher.Constraint("Diameter", 0, Q("4 mm")),
    Sketcher.Constraint("DistanceY", -1, 1, 0, 3, Q("5 mm")),
    Sketcher.Constraint("DistanceY", 1, 3, -1, 1, Q("5 mm")),
    Sketcher.Constraint("DistanceX", 0, 3, 1, 3, Q("15 mm")),
    Sketcher.Constraint("DistanceX", 0, 3, -1, 1, Q("27.5 mm")),
])
sketch12.setExpression("Constraints[1]", "Params.sketch12_diameter")
pocket4 = body.newObject("PartDesign::Pocket", "Pocket003")
pocket4.Profile = sketch12
pocket4.setExpression("Length", "Params.pocket4_length")
pocket4.Reversed = True

# Sketch on XY plane
sketch13 = body.newObject("Sketcher::SketchObject", "Sketch012")
sketch13.AttachmentSupport = (doc.getObject("XY_Plane"), [""])
sketch13.MapMode = "FlatFace"
sketch13.AttachmentOffset = App.Placement(App.Vector(0, 0, 10), App.Rotation())
sketch13.addGeometry([
    Part.LineSegment(App.Vector(24, -35, 0), App.Vector(24, -20, 0)),  # 0
    Part.LineSegment(App.Vector(24, -20, 0), App.Vector(21, -20, 0)),  # 1
    Part.LineSegment(App.Vector(21, -20, 0), App.Vector(21, -35, 0)),  # 2
    Part.LineSegment(App.Vector(21, -35, 0), App.Vector(24, -35, 0)),  # 3
    Part.LineSegment(App.Vector(21, 0, 0), App.Vector(21, 3, 0)),  # 4
    Part.LineSegment(App.Vector(21, 3, 0), App.Vector(-24, 3, 0)),  # 5
    Part.LineSegment(App.Vector(-24, 3, 0), App.Vector(-24, 0, 0)),  # 6
    Part.LineSegment(App.Vector(-24, 0, 0), App.Vector(21, 0, 0)),  # 7
], False)
sketch13.addConstraint([
    Sketcher.Constraint("Coincident", 0, 2, 1, 1),
    Sketcher.Constraint("Coincident", 1, 2, 2, 1),
    Sketcher.Constraint("Coincident", 2, 2, 3, 1),
    Sketcher.Constraint("Coincident", 3, 2, 0, 1),
    Sketcher.Constraint("Coincident", 4, 2, 5, 1),
    Sketcher.Constraint("Coincident", 5, 2, 6, 1),
    Sketcher.Constraint("Coincident", 6, 2, 7, 1),
    Sketcher.Constraint("Coincident", 7, 2, 4, 1),
    Sketcher.Constraint("Vertical", 0),
    Sketcher.Constraint("Horizontal", 1),
    Sketcher.Constraint("Vertical", 2),
    Sketcher.Constraint("Horizontal", 3),
    Sketcher.Constraint("Vertical", 4),
    Sketcher.Constraint("Horizontal", 5),
    Sketcher.Constraint("Vertical", 6),
    Sketcher.Constraint("Horizontal", 7),
    Sketcher.Constraint("PointOnObject", 6, 2, -1),
    Sketcher.Constraint("Vertical", 2, 2, 4, 2),
    Sketcher.Constraint("Equal", 3, 4),
    Sketcher.Constraint("DistanceX", 1, 2, 1, 1, Q("3 mm")),
    Sketcher.Constraint("DistanceX", 5, 2, 5, 1, Q("45 mm")),
    Sketcher.Constraint("DistanceY", 0, 1, 0, 2, Q("15 mm")),
    Sketcher.Constraint("DistanceX", -1, 1, 0, 2, Q("24 mm")),
    Sketcher.Constraint("DistanceY", 0, 2, -1, 1, Q("20 mm")),
])
sketch13.setExpression("Constraints[19]", "Params.sketch13_width")
sketch13.setExpression("Constraints[20]", "Params.sketch13_width2")
sketch13.setExpression("Constraints[21]", "Params.sketch13_height")
pocket5 = body.newObject("PartDesign::Pocket", "Pocket004")
pocket5.Profile = sketch13
pocket5.setExpression("Length", "Params.pocket5_length")
doc.recompute()

fillet = body.newObject("PartDesign::Fillet", "Fillet")
fillet.Base = (pocket5, edges_at(pocket5, [
    (24, -35, -51.5),
    (24, 3, -45),
    (-24, 3, -50),
    (-24, 0, -115.5),
    (0, 0, -138),
    (24, 0, -115.5),
    (0, -35, -93),
]))
fillet.setExpression("Radius", "Params.fillet_radius")

doc.recompute()
